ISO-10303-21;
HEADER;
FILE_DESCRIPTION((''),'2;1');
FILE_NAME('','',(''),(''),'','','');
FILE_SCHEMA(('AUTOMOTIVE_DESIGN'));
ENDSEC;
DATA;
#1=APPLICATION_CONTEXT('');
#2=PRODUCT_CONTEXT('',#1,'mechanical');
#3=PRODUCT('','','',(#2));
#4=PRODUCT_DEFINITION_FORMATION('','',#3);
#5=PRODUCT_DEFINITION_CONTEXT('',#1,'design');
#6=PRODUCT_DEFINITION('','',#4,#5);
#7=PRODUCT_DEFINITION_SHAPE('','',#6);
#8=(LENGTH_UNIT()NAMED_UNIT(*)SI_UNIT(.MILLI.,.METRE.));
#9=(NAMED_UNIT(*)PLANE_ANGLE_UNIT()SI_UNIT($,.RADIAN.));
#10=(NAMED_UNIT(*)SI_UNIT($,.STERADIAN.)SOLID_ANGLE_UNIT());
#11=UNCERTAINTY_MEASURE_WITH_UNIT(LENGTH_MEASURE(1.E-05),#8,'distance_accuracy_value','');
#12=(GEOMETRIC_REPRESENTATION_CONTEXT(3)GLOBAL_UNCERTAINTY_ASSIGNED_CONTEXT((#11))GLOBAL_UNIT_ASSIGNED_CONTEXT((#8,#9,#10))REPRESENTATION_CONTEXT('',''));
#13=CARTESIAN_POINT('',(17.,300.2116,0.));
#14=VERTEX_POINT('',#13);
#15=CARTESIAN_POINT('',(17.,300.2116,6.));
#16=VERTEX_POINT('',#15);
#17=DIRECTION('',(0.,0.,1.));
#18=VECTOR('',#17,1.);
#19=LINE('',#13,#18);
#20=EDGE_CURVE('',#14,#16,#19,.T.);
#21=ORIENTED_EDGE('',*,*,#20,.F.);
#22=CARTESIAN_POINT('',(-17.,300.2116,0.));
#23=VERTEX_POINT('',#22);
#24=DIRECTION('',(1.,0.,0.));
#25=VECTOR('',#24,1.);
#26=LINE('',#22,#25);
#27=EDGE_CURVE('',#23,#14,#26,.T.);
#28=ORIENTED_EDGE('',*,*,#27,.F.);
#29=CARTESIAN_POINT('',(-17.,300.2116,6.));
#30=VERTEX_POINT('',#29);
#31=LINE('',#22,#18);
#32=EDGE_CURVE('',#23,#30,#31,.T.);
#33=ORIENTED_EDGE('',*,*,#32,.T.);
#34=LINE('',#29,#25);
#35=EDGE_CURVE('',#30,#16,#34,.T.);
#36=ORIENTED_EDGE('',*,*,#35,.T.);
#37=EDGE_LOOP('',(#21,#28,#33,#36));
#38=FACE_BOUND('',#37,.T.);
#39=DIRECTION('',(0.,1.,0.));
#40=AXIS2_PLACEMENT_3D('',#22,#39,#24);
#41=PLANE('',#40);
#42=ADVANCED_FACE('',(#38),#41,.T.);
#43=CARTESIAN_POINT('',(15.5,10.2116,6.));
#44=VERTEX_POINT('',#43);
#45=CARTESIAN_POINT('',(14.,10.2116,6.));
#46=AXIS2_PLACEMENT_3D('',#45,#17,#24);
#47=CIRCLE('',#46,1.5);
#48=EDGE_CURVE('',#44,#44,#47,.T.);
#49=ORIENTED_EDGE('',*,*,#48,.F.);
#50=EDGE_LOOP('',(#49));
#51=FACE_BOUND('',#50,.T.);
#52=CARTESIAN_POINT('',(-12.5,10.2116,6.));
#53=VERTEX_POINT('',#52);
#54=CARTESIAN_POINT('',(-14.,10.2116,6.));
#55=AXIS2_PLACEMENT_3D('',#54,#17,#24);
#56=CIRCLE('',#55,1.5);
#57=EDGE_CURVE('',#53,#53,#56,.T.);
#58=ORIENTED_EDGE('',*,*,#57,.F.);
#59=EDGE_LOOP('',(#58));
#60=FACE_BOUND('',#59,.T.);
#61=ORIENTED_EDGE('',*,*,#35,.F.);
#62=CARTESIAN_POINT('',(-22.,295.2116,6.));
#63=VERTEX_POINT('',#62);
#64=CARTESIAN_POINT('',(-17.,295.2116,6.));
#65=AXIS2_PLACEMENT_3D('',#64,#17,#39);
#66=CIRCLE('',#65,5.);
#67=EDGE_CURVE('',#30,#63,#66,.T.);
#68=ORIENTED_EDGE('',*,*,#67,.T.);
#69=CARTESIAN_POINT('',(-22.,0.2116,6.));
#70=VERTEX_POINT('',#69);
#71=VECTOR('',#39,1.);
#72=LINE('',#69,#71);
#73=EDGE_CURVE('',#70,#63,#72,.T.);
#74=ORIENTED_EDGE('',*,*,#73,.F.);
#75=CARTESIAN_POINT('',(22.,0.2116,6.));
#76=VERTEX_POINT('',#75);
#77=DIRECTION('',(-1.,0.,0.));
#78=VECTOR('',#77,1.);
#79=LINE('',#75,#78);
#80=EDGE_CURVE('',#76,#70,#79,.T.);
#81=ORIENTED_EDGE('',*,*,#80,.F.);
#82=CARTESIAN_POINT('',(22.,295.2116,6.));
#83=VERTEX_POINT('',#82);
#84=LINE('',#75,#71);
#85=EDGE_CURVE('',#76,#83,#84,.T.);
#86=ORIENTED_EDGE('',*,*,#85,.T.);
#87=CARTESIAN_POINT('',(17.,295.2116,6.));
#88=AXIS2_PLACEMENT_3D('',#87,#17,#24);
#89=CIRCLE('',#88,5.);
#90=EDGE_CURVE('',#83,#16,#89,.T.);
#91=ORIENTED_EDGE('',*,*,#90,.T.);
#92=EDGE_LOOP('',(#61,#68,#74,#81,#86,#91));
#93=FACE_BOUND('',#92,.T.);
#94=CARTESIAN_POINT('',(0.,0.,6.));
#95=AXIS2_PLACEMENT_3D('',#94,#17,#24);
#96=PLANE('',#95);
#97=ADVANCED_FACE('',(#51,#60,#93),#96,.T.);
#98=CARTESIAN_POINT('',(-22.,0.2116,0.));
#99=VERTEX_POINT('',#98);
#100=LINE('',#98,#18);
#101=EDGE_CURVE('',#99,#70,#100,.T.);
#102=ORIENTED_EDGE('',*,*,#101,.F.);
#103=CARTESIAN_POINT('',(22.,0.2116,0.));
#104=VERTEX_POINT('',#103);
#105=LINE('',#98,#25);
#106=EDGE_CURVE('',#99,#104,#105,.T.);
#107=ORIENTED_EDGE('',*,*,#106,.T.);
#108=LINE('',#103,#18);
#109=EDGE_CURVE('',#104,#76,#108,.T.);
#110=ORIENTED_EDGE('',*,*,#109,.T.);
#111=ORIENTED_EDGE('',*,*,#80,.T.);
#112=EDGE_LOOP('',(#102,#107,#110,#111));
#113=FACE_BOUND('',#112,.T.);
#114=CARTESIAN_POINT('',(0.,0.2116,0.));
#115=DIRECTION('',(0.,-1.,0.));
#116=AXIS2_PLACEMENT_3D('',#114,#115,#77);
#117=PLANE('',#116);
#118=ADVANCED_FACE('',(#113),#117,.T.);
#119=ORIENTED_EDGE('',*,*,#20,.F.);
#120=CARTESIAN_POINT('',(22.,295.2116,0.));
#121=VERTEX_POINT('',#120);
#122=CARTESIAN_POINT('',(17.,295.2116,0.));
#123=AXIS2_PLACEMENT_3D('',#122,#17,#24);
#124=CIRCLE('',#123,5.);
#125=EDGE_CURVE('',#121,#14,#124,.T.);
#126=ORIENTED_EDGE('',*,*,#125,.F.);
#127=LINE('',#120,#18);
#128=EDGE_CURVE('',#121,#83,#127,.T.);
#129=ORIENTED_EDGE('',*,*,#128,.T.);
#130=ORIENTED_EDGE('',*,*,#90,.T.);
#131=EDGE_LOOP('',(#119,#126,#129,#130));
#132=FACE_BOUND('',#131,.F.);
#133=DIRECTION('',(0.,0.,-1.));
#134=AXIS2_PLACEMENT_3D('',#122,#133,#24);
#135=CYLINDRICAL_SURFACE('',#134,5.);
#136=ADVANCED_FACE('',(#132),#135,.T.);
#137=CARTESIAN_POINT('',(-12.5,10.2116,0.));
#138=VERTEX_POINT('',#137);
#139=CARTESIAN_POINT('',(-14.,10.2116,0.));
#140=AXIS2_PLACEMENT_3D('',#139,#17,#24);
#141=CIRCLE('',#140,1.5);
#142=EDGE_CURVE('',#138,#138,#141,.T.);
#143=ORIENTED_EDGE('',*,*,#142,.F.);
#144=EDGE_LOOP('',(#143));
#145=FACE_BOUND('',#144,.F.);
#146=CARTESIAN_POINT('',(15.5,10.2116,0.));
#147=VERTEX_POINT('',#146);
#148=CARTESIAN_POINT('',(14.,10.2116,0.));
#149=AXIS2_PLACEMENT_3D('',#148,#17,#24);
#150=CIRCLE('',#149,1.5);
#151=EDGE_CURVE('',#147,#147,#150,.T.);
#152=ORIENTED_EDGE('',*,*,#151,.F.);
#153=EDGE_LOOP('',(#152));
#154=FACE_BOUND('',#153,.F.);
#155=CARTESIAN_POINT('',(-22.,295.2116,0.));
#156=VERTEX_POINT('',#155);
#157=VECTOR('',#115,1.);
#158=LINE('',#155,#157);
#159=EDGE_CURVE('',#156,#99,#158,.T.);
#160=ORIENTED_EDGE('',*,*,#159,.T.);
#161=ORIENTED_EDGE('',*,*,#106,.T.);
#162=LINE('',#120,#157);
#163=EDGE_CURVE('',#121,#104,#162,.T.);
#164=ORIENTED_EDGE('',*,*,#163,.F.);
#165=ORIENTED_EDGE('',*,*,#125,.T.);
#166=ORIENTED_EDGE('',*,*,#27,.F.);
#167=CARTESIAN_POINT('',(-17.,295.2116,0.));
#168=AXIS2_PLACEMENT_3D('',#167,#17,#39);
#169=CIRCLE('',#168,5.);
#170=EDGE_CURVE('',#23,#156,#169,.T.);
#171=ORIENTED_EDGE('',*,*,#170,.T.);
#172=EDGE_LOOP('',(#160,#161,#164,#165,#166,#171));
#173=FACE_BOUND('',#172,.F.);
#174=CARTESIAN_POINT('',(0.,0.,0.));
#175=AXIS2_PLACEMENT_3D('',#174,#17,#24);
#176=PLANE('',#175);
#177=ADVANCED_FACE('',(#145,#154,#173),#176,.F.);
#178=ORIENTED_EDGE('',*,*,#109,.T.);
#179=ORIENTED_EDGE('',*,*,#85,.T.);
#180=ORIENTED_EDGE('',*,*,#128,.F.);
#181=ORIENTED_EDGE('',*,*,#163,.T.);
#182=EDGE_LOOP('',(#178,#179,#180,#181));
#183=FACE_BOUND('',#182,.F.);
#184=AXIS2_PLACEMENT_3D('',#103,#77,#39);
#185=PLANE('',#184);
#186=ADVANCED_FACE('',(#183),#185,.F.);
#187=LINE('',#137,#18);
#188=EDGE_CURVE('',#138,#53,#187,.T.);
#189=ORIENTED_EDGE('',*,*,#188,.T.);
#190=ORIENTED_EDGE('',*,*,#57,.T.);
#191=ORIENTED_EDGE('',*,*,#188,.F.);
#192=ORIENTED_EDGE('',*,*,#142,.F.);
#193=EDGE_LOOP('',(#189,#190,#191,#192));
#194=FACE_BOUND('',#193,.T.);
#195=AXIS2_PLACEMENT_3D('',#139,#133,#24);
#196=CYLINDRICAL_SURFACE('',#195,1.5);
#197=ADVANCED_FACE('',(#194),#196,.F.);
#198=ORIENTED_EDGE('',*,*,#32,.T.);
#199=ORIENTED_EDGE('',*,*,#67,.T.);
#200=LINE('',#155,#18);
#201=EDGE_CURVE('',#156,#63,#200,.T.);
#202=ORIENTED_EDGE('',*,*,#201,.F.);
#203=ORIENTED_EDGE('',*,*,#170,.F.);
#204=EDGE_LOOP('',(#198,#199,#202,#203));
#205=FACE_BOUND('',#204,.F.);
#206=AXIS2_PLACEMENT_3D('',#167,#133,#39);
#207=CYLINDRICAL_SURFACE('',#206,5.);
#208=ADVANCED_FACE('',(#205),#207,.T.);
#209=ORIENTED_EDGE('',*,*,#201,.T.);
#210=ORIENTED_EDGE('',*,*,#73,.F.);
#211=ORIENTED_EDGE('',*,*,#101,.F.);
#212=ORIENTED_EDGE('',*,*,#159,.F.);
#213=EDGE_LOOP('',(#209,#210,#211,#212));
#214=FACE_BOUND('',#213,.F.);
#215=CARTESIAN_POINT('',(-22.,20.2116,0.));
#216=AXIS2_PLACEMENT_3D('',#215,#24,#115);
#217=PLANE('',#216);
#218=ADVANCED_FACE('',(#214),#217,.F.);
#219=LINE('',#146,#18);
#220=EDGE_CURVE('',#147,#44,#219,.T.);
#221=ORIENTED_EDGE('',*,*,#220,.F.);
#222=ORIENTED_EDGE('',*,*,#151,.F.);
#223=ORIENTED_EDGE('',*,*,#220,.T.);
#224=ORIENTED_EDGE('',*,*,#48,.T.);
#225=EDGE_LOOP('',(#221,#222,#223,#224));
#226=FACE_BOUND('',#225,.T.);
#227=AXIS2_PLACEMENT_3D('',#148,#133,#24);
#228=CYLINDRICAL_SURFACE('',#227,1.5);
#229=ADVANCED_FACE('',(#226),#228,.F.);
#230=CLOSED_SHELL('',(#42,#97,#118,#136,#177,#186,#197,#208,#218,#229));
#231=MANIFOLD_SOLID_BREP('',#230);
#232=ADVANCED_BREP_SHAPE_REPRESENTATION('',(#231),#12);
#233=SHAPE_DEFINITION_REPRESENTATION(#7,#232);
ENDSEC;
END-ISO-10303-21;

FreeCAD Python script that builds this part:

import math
import FreeCAD as App
import Part
import Sketcher
from FreeCAD import Vector

doc = App.newDocument("Part")
body = doc.addObject("PartDesign::Body", "Body")

# Sketch on XY plane
sketch1 = body.newObject("Sketcher::SketchObject", "Sketch")
sketch1.AttachmentSupport = (doc.getObject("XY_Plane"), [""])
sketch1.MapMode = "FlatFace"
sketch1.addGeometry([
    Part.LineSegment(Vector(-22, 0.2, 0), Vector(22, 0.2, 0)),  # 0
    Part.LineSegment(Vector(22, 0.2, 0), Vector(22, 295.2, 0)),  # 1
    Part.ArcOfCircle(Part.Circle(Vector(17, 295.2, 0), Vector(0, 0, 1), 5), math.radians(0), math.radians(90)),  # 2
    Part.LineSegment(Vector(17, 300.2, 0), Vector(-17, 300.2, 0)),  # 3
    Part.ArcOfCircle(Part.Circle(Vector(-17, 295.2, 0), Vector(0, 0, 1), 5), math.radians(90), math.radians(180)),  # 4
    Part.LineSegment(Vector(-22, 295.2, 0), Vector(-22, 0.2, 0)),  # 5
    Part.Circle(Vector(-14, 10.2, 0), Vector(0, 0, 1), 1.5),  # 6
    Part.Circle(Vector(14, 10.2, 0), Vector(0, 0, 1), 1.5),  # 7
], False)
sketch1.addConstraint([
    Sketcher.Constraint("Coincident", 0, 2, 1, 1),
    Sketcher.Constraint("Tangent", 1, 2, 2, 1),
    Sketcher.Constraint("Tangent", 2, 2, 3, 1),
    Sketcher.Constraint("Tangent", 3, 2, 4, 1),
    Sketcher.Constraint("Tangent", 4, 2, 5, 1),
    Sketcher.Constraint("Coincident", 5, 2, 0, 1),
    Sketcher.Constraint("Horizontal", 0),
    Sketcher.Constraint("Vertical", 1),
    Sketcher.Constraint("Horizontal", 3),
    Sketcher.Constraint("Vertical", 5),
    Sketcher.Constraint("Equal", 2, 4),
    Sketcher.Constraint("Equal", 6, 7),
    Sketcher.Constraint("Symmetric", 6, 3, 7, 3, -2),
    Sketcher.Constraint("Diameter", 6, 3.0),
    Sketcher.Constraint("Radius", 2, 5.0),
    Sketcher.Constraint("DistanceX", 6, 3, -1, 1, 14.0),
    Sketcher.Constraint("DistanceX", 4, 3, 6, 3, 3.0),
    Sketcher.Constraint("DistanceX", 7, 3, 2, 3, 3.0),
    Sketcher.Constraint("DistanceY", 0, 2, 7, 3, 10.0),
    Sketcher.Constraint("DistanceY", 1, 1, 1, 2, 295.0),
    Sketcher.Constraint("DistanceY", -1, 1, 2, 3, 295.2116),
])
pad1 = body.newObject("PartDesign::Pad", "Pad")
pad1.Profile = sketch1
pad1.Length = 6

doc.recompute()
